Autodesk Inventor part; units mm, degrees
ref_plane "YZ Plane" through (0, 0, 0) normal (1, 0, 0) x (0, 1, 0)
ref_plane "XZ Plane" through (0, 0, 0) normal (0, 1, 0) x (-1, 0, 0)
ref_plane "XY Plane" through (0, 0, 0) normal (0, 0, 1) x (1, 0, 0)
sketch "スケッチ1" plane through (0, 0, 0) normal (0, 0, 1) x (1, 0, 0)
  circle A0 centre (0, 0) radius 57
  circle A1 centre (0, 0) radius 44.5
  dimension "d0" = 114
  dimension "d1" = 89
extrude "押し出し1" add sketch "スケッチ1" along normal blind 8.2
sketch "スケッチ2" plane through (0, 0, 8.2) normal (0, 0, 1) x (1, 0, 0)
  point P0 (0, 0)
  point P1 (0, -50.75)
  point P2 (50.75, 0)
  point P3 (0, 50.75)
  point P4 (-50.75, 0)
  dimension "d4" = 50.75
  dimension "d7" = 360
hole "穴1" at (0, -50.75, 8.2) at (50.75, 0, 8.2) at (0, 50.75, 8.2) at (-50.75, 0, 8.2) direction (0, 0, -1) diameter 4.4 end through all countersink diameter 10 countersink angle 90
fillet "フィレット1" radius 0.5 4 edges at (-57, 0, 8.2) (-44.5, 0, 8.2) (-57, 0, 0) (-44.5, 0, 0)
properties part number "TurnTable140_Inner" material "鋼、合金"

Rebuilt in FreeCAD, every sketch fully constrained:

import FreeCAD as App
import Part
import Sketcher
Q = App.Units.Quantity


def edges_at(feature, points):
    """Names of the edges that pass closest to the given points."""
    edges = feature.Shape.Edges
    near = lambda p: min(range(len(edges)), key=lambda i: edges[i].distToShape(Part.Vertex(*p))[0])
    return sorted({f"Edge{near(p) + 1}" for p in points})

doc = App.newDocument("Part")
body = doc.addObject("PartDesign::Body", "Body")

# Sketch on XY plane
sketch1 = body.newObject("Sketcher::SketchObject", "Sketch")
sketch1.AttachmentSupport = (doc.getObject("XY_Plane"), [""])
sketch1.MapMode = "FlatFace"
sketch1.addGeometry(Part.Circle(App.Vector(0, 0, 0), App.Vector(0, 0, 1), 57), False)
sketch1.addGeometry(Part.Circle(App.Vector(0, 0, 0), App.Vector(0, 0, 1), 44.5), False)
sketch1.addConstraint(Sketcher.Constraint("Coincident", 0, 3, -1, 1))
sketch1.addConstraint(Sketcher.Constraint("Coincident", 1, 3, -1, 1))
sketch1.addConstraint(Sketcher.Constraint("Diameter", 0, Q("114 mm")))
sketch1.addConstraint(Sketcher.Constraint("Diameter", 1, Q("89 mm")))
pad1 = body.newObject("PartDesign::Pad", "Pad")
pad1.Profile = sketch1
pad1.Length = 8.2

# Sketch on XY plane
sketch2 = body.newObject("Sketcher::SketchObject", "Sketch001")
sketch2.AttachmentSupport = (doc.getObject("XY_Plane"), [""])
sketch2.MapMode = "FlatFace"
sketch2.AttachmentOffset = App.Placement(App.Vector(0, 0, 8.2), App.Rotation())
sketch2.addGeometry(Part.Circle(App.Vector(0, -50.75, 0), App.Vector(0, 0, 1), 2.2), False)
sketch2.addGeometry(Part.Circle(App.Vector(50.75, 0, 0), App.Vector(0, 0, 1), 2.2), False)
sketch2.addGeometry(Part.Circle(App.Vector(0, 50.75, 0), App.Vector(0, 0, 1), 2.2), False)
sketch2.addGeometry(Part.Circle(App.Vector(-50.75, 0, 0), App.Vector(0, 0, 1), 2.2), False)
sketch2.addConstraint(Sketcher.Constraint("Equal", 0, 1))
sketch2.addConstraint(Sketcher.Constraint("Equal", 1, 2))
sketch2.addConstraint(Sketcher.Constraint("Equal", 2, 3))
sketch2.addConstraint(Sketcher.Constraint("Symmetric", 0, 3, 2, 3, -1, 1))
sketch2.addConstraint(Sketcher.Constraint("Symmetric", 1, 3, 3, 3, -1, 1))
sketch2.addConstraint(Sketcher.Constraint("PointOnObject", 0, 3, -2))
sketch2.addConstraint(Sketcher.Constraint("PointOnObject", 1, 3, -1))
sketch2.addConstraint(Sketcher.Constraint("Diameter", 0, Q("4.4 mm")))
sketch2.addConstraint(Sketcher.Constraint("DistanceY", 0, 3, 2, 3, Q("101.5 mm")))
sketch2.addConstraint(Sketcher.Constraint("DistanceX", 3, 3, 1, 3, Q("101.5 mm")))
doc.recompute()
hole = body.newObject("PartDesign::Hole", "Hole")
hole.Profile = sketch2
hole.ThreadType = "None"
hole.Diameter = 4.4
hole.DepthType = "ThroughAll"
hole.HoleCutType = "Countersink"
hole.HoleCutDiameter = 10
hole.HoleCutCountersinkAngle = 90
doc.recompute()

fillet = body.newObject("PartDesign::Fillet", "Fillet")
fillet.Base = (hole, edges_at(hole, [
    (-57, 0, 8.2),
    (-44.5, 0, 8.2),
    (-57, 0, 0),
    (-44.5, 0, 0),
]))
fillet.Radius = 0.5

doc.recompute()
